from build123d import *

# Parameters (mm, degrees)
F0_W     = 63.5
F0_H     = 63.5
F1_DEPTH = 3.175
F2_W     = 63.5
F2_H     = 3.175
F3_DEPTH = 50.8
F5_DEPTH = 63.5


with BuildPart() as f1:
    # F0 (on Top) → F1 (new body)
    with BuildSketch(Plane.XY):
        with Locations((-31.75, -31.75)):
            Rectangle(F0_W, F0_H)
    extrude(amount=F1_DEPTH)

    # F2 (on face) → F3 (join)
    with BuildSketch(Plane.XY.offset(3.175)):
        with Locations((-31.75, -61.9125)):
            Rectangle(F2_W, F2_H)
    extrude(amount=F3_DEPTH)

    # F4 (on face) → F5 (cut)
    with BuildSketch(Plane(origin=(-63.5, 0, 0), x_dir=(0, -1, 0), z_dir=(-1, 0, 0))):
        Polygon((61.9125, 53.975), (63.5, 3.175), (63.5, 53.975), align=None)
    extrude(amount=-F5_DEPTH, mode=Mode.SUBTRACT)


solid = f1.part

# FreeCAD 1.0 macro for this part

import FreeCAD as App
import Part
import Sketcher

V = App.Vector
Q = App.Units.Quantity


def add_polygon(sketch, points):
    """Adds a closed chain of lines whose ends are joined by coincident constraints."""
    first, n = sketch.GeometryCount, len(points)
    for a, b in zip(points, points[1:] + points[:1]):
        sketch.addGeometry(Part.LineSegment(App.Vector(*a, 0), App.Vector(*b, 0)), False)
    for i in range(n):
        sketch.addConstraint(Sketcher.Constraint("Coincident", first + i, 2, first + (i + 1) % n, 1))

doc = App.newDocument("Part")
params = doc.addObject("Spreadsheet::Sheet", "Params")
for row, (alias, value) in enumerate([
    ("sketch1_width", "2.5 in"),
    ("pad1_length", "0.125 in"),
    ("sketch2_width", "2.5 in"),
    ("sketch2_height", "0.125 in"),
    ("pad2_length", "2 in"),
    ("sketch3_height", "2 in"),
    ("sketch3_width", "0.0625 in"),
    ("pocket1_length", "2.5 in"),
], start=1):
    params.set(f"A{row}", alias)
    params.set(f"B{row}", "=" + value)
    params.setAlias(f"B{row}", alias)

body = doc.addObject("PartDesign::Body", "Body")

# Sketch on XY plane
sketch1 = doc.addObject("Sketcher::SketchObject", "Sketch")
body.addObject(sketch1)
sketch1.AttachmentSupport = (doc.XY_Plane, [""])
sketch1.MapMode = "FlatFace"
add_polygon(sketch1, [(-63.5, 0), (-63.5, -63.5), (0, -63.5), (0, 0)])  # lines 0-3
sketch1.addConstraint([
    Sketcher.Constraint("Vertical", 0),
    Sketcher.Constraint("Horizontal", 1),
    Sketcher.Constraint("Vertical", 2),
    Sketcher.Constraint("Horizontal", 3),
    Sketcher.Constraint("Coincident", 2, 2, -1, 1),
    Sketcher.Constraint("Equal", 3, 0),
    Sketcher.Constraint("DistanceX", 1, 1, 1, 2, Q("2.5 in")),
])
sketch1.setExpression("Constraints[10]", "Params.sketch1_width")
pad1 = doc.addObject("PartDesign::Pad", "Pad")
body.addObject(pad1)
pad1.Profile = sketch1
pad1.setExpression("Length", "Params.pad1_length")

# Sketch on XY plane
sketch2 = doc.addObject("Sketcher::SketchObject", "Sketch001")
body.addObject(sketch2)
sketch2.AttachmentSupport = (doc.XY_Plane, [""])
sketch2.MapMode = "FlatFace"
sketch2.AttachmentOffset = App.Placement(V(0, 0, 0.125 * 25.4), App.Rotation())
add_polygon(sketch2, [(-63.5, -60.325), (-63.5, -63.5), (0, -63.5), (0, -60.325)])  # lines 0-3
sketch2.addConstraint([
    Sketcher.Constraint("Vertical", 0),
    Sketcher.Constraint("Horizontal", 1),
    Sketcher.Constraint("Vertical", 2),
    Sketcher.Constraint("Horizontal", 3),
    Sketcher.Constraint("PointOnObject", 1, 2, -2),
    Sketcher.Constraint("DistanceX", 1, 1, 1, 2, Q("2.5 in")),
    Sketcher.Constraint("DistanceY", 0, 2, -1, 1, Q("2.5 in")),
    Sketcher.Constraint("DistanceY", 0, 2, 0, 1, Q("0.125 in")),
])
sketch2.setExpression("Constraints[9]", "Params.sketch2_width")
sketch2.setExpression("Constraints[11]", "Params.sketch2_height")
pad2 = doc.addObject("PartDesign::Pad", "Pad001")
body.addObject(pad2)
pad2.Profile = sketch2
pad2.setExpression("Length", "Params.pad2_length")

# Sketch on YZ plane
sketch3 = doc.addObject("Sketcher::SketchObject", "Sketch002")
body.addObject(sketch3)
sketch3.AttachmentSupport = (doc.YZ_Plane, [""])
sketch3.MapMode = "FlatFace"
sketch3.AttachmentOffset = App.Placement(V(0, 0, -2.5 * 25.4), App.Rotation())
add_polygon(sketch3, [(-61.9125, 53.975), (-63.5, 3.175), (-63.5, 53.975)])  # lines 0-2
sketch3.addConstraint([
    Sketcher.Constraint("Vertical", 1),
    Sketcher.Constraint("Horizontal", 2),
    Sketcher.Constraint("DistanceY", 1, 1, 1, 2, Q("2 in")),
    Sketcher.Constraint("DistanceX", 0, 2, -1, 1, Q("2.5 in")),
    Sketcher.Constraint("DistanceX", 2, 1, 2, 2, Q("0.0625 in")),
    Sketcher.Constraint("DistanceY", -1, 1, 0, 2, Q("0.125 in")),
])
sketch3.setExpression("Constraints[5]", "Params.sketch3_height")
sketch3.setExpression("Constraints[7]", "Params.sketch3_width")
pocket1 = doc.addObject("PartDesign::Pocket", "Pocket")
body.addObject(pocket1)
pocket1.Profile = sketch3
pocket1.setExpression("Length", "Params.pocket1_length")
pocket1.Reversed = True

doc.recompute()
